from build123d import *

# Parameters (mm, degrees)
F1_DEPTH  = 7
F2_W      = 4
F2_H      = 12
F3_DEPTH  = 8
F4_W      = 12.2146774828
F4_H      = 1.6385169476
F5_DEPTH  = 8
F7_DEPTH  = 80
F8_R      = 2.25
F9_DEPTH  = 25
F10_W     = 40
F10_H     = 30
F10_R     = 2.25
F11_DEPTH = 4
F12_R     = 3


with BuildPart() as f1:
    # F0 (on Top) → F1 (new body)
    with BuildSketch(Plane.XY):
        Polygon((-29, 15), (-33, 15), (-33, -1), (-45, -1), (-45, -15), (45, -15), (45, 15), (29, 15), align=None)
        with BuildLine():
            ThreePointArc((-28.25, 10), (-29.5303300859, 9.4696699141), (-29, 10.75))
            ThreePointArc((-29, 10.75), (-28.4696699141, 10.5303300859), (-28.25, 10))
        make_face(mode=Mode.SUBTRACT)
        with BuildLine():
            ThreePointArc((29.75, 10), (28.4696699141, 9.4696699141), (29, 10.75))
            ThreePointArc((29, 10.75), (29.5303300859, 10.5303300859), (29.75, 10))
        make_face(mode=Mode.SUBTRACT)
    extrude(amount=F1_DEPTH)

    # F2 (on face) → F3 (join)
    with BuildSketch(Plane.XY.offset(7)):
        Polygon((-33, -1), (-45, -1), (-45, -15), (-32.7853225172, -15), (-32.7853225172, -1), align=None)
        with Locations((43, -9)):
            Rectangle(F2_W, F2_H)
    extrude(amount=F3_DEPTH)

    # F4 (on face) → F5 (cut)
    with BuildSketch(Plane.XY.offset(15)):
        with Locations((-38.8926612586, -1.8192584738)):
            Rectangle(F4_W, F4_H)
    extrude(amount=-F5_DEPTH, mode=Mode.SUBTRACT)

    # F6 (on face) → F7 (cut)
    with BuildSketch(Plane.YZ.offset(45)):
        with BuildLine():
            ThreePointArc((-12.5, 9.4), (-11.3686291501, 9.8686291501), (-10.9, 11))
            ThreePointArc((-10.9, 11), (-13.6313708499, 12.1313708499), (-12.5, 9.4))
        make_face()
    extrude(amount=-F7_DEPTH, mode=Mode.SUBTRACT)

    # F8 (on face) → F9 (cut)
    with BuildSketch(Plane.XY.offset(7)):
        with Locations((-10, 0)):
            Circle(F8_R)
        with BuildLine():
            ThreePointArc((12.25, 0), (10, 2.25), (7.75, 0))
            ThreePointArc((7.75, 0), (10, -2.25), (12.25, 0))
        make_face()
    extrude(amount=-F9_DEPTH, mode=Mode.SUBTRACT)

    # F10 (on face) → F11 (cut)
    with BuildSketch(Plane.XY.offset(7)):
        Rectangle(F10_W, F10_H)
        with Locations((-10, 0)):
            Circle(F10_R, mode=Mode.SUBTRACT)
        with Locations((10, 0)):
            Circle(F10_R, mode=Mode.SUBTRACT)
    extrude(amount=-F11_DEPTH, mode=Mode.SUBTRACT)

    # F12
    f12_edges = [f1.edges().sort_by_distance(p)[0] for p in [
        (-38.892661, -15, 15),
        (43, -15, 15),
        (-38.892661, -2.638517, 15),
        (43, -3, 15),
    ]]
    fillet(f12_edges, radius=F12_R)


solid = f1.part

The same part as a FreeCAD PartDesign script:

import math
import FreeCAD as App
import Part
import Sketcher
from FreeCAD import Vector


def edges_at(feature, points):
    """Names of the edges that pass closest to the given points."""
    edges = feature.Shape.Edges
    near = lambda p: min(range(len(edges)), key=lambda i: edges[i].distToShape(Part.Vertex(*p))[0])
    return sorted({f"Edge{near(p) + 1}" for p in points})

doc = App.newDocument("Part")
body = doc.addObject("PartDesign::Body", "Body")

# Sketch on XY plane
sketch1 = body.newObject("Sketcher::SketchObject", "Sketch")
sketch1.AttachmentSupport = (doc.getObject("XY_Plane"), [""])
sketch1.MapMode = "FlatFace"
sketch1.addGeometry(Part.LineSegment(Vector(-33, 15, 0), Vector(-33, -1, 0)), False)
sketch1.addGeometry(Part.LineSegment(Vector(-33, -1, 0), Vector(-45, -1, 0)), False)
sketch1.addGeometry(Part.LineSegment(Vector(-45, -1, 0), Vector(-45, -15, 0)), False)
sketch1.addGeometry(Part.LineSegment(Vector(-45, -15, 0), Vector(45, -15, 0)), False)
sketch1.addGeometry(Part.LineSegment(Vector(45, -15, 0), Vector(45, 15, 0)), False)
sketch1.addGeometry(Part.LineSegment(Vector(45, 15, 0), Vector(-33, 15, 0)), False)
sketch1.addGeometry(Part.ArcOfCircle(Part.Circle(Vector(-29, 10, 0), Vector(0, 0, 1), 0.8), math.radians(0), math.radians(90)), False)
sketch1.addGeometry(Part.ArcOfCircle(Part.Circle(Vector(-29, 10, 0), Vector(0, 0, 1), 0.8), math.radians(90), math.radians(360)), False)
sketch1.addGeometry(Part.ArcOfCircle(Part.Circle(Vector(29, 10, 0), Vector(0, 0, 1), 0.8), math.radians(0), math.radians(90)), False)
sketch1.addGeometry(Part.ArcOfCircle(Part.Circle(Vector(29, 10, 0), Vector(0, 0, 1), 0.8), math.radians(90), math.radians(360)), False)
sketch1.addConstraint(Sketcher.Constraint("Coincident", 0, 2, 1, 1))
sketch1.addConstraint(Sketcher.Constraint("Coincident", 1, 2, 2, 1))
sketch1.addConstraint(Sketcher.Constraint("Coincident", 2, 2, 3, 1))
sketch1.addConstraint(Sketcher.Constraint("Coincident", 3, 2, 4, 1))
sketch1.addConstraint(Sketcher.Constraint("Coincident", 4, 2, 5, 1))
sketch1.addConstraint(Sketcher.Constraint("Coincident", 5, 2, 0, 1))
sketch1.addConstraint(Sketcher.Constraint("Tangent", 6, 1, 7, 2))
sketch1.addConstraint(Sketcher.Constraint("Coincident", 7, 1, 6, 2))
sketch1.addConstraint(Sketcher.Constraint("Tangent", 8, 1, 9, 2))
sketch1.addConstraint(Sketcher.Constraint("Coincident", 9, 1, 8, 2))
sketch1.addConstraint(Sketcher.Constraint("Vertical", 0))
sketch1.addConstraint(Sketcher.Constraint("Horizontal", 1))
sketch1.addConstraint(Sketcher.Constraint("Vertical", 2))
sketch1.addConstraint(Sketcher.Constraint("Horizontal", 3))
sketch1.addConstraint(Sketcher.Constraint("Vertical", 4))
sketch1.addConstraint(Sketcher.Constraint("Horizontal", 5))
sketch1.addConstraint(Sketcher.Constraint("Equal", 7, 8))
sketch1.addConstraint(Sketcher.Constraint("Symmetric", 2, 2, 4, 2, -1, 1))
sketch1.addConstraint(Sketcher.Constraint("Symmetric", 6, 3, 8, 3, -2))
sketch1.addConstraint(Sketcher.Constraint("Horizontal", 9, 3, 6, 1))
sketch1.addConstraint(Sketcher.Constraint("Horizontal", 6, 1, 8, 1))
sketch1.addConstraint(Sketcher.Constraint("Vertical", 6, 3, 7, 1))
sketch1.addConstraint(Sketcher.Constraint("Vertical", 8, 3, 9, 1))
sketch1.addConstraint(Sketcher.Constraint("DistanceX", 1, 2, 1, 1, 12.0))
sketch1.addConstraint(Sketcher.Constraint("DistanceX", 3, 1, 3, 2, 90.0))
sketch1.addConstraint(Sketcher.Constraint("DistanceY", 0, 2, 0, 1, 16.0))
sketch1.addConstraint(Sketcher.Constraint("DistanceY", 2, 2, 2, 1, 14.0))
sketch1.addConstraint(Sketcher.Constraint("Radius", 6, 0.75))
sketch1.addConstraint(Sketcher.Constraint("DistanceX", 6, 3, -1, 1, 29.0))
sketch1.addConstraint(Sketcher.Constraint("DistanceY", -1, 1, 6, 3, 10.0))
pad1 = body.newObject("PartDesign::Pad", "Pad")
pad1.Profile = sketch1
pad1.Length = 7

# Sketch on XY plane
sketch2 = body.newObject("Sketcher::SketchObject", "Sketch001")
sketch2.AttachmentSupport = (doc.getObject("XY_Plane"), [""])
sketch2.MapMode = "FlatFace"
sketch2.AttachmentOffset = App.Placement(Vector(0, 0, 7), App.Rotation())
sketch2.addGeometry(Part.LineSegment(Vector(-45, -1, 0), Vector(-45, -15, 0)), False)
sketch2.addGeometry(Part.LineSegment(Vector(-45, -15, 0), Vector(-32.8, -15, 0)), False)
sketch2.addGeometry(Part.LineSegment(Vector(-32.8, -15, 0), Vector(-32.8, -1, 0)), False)
sketch2.addGeometry(Part.LineSegment(Vector(-32.8, -1, 0), Vector(-45, -1, 0)), False)
sketch2.addGeometry(Part.LineSegment(Vector(41, -3, 0), Vector(41, -15, 0)), False)
sketch2.addGeometry(Part.LineSegment(Vector(41, -15, 0), Vector(45, -15, 0)), False)
sketch2.addGeometry(Part.LineSegment(Vector(45, -15, 0), Vector(45, -3, 0)), False)
sketch2.addGeometry(Part.LineSegment(Vector(45, -3, 0), Vector(41, -3, 0)), False)
sketch2.addConstraint(Sketcher.Constraint("Coincident", 0, 2, 1, 1))
sketch2.addConstraint(Sketcher.Constraint("Coincident", 1, 2, 2, 1))
sketch2.addConstraint(Sketcher.Constraint("Coincident", 2, 2, 3, 1))
sketch2.addConstraint(Sketcher.Constraint("Coincident", 3, 2, 0, 1))
sketch2.addConstraint(Sketcher.Constraint("Coincident", 4, 2, 5, 1))
sketch2.addConstraint(Sketcher.Constraint("Coincident", 5, 2, 6, 1))
sketch2.addConstraint(Sketcher.Constraint("Coincident", 6, 2, 7, 1))
sketch2.addConstraint(Sketcher.Constraint("Coincident", 7, 2, 4, 1))
sketch2.addConstraint(Sketcher.Constraint("Vertical", 0))
sketch2.addConstraint(Sketcher.Constraint("Horizontal", 1))
sketch2.addConstraint(Sketcher.Constraint("Vertical", 2))
sketch2.addConstraint(Sketcher.Constraint("Horizontal", 3))
sketch2.addConstraint(Sketcher.Constraint("Vertical", 4))
sketch2.addConstraint(Sketcher.Constraint("Horizontal", 5))
sketch2.addConstraint(Sketcher.Constraint("Vertical", 6))
sketch2.addConstraint(Sketcher.Constraint("Horizontal", 7))
sketch2.addConstraint(Sketcher.Constraint("Symmetric", 0, 2, 5, 2, -2))
sketch2.addConstraint(Sketcher.Constraint("DistanceX", 5, 1, 5, 2, 4.0))
sketch2.addConstraint(Sketcher.Constraint("DistanceY", 0, 2, 0, 1, 14.0))
sketch2.addConstraint(Sketcher.Constraint("DistanceY", 4, 2, 4, 1, 12.0))
sketch2.addConstraint(Sketcher.Constraint("DistanceX", 0, 2, -1, 1, 45.0))
sketch2.addConstraint(Sketcher.Constraint("DistanceY", 0, 2, -1, 1, 15.0))
sketch2.addConstraint(Sketcher.Constraint("DistanceX", 1, 1, 1, 2, 12.214677))
pad2 = body.newObject("PartDesign::Pad", "Pad001")
pad2.Profile = sketch2
pad2.Length = 8

# Sketch on XY plane
sketch3 = body.newObject("Sketcher::SketchObject", "Sketch002")
sketch3.AttachmentSupport = (doc.getObject("XY_Plane"), [""])
sketch3.MapMode = "FlatFace"
sketch3.AttachmentOffset = App.Placement(Vector(0, 0, 15), App.Rotation())
sketch3.addGeometry(Part.LineSegment(Vector(-45, -1, 0), Vector(-45, -2.6, 0)), False)
sketch3.addGeometry(Part.LineSegment(Vector(-45, -2.6, 0), Vector(-32.8, -2.6, 0)), False)
sketch3.addGeometry(Part.LineSegment(Vector(-32.8, -2.6, 0), Vector(-32.8, -1, 0)), False)
sketch3.addGeometry(Part.LineSegment(Vector(-32.8, -1, 0), Vector(-45, -1, 0)), False)
sketch3.addConstraint(Sketcher.Constraint("Coincident", 0, 2, 1, 1))
sketch3.addConstraint(Sketcher.Constraint("Coincident", 1, 2, 2, 1))
sketch3.addConstraint(Sketcher.Constraint("Coincident", 2, 2, 3, 1))
sketch3.addConstraint(Sketcher.Constraint("Coincident", 3, 2, 0, 1))
sketch3.addConstraint(Sketcher.Constraint("Vertical", 0))
sketch3.addConstraint(Sketcher.Constraint("Horizontal", 1))
sketch3.addConstraint(Sketcher.Constraint("Vertical", 2))
sketch3.addConstraint(Sketcher.Constraint("Horizontal", 3))
sketch3.addConstraint(Sketcher.Constraint("DistanceX", 0, 2, -1, 1, 45.0))
sketch3.addConstraint(Sketcher.Constraint("DistanceY", 2, 2, -1, 1, 1.0))
sketch3.addConstraint(Sketcher.Constraint("DistanceX", 1, 1, 1, 2, 12.214677))
sketch3.addConstraint(Sketcher.Constraint("DistanceY", 0, 2, 0, 1, 1.638517))
pocket1 = body.newObject("PartDesign::Pocket", "Pocket")
pocket1.Profile = sketch3
pocket1.Length = 8

# Sketch on YZ plane
sketch4 = body.newObject("Sketcher::SketchObject", "Sketch003")
sketch4.AttachmentSupport = (doc.getObject("YZ_Plane"), [""])
sketch4.MapMode = "FlatFace"
sketch4.AttachmentOffset = App.Placement(Vector(0, 0, 45), App.Rotation())
sketch4.addGeometry(Part.ArcOfCircle(Part.Circle(Vector(-12.5, 11, 0), Vector(0, 0, 1), 1.6), math.radians(-90), math.radians(0)), False)
sketch4.addGeometry(Part.ArcOfCircle(Part.Circle(Vector(-12.5, 11, 0), Vector(0, 0, 1), 1.6), math.radians(0), math.radians(270)), False)
sketch4.addConstraint(Sketcher.Constraint("Tangent", 0, 1, 1, 2))
sketch4.addConstraint(Sketcher.Constraint("Coincident", 1, 1, 0, 2))
sketch4.addConstraint(Sketcher.Constraint("Horizontal", 0, 3, 1, 1))
sketch4.addConstraint(Sketcher.Constraint("Vertical", 1, 3, 0, 1))
sketch4.addConstraint(Sketcher.Constraint("Radius", 0, 1.6))
sketch4.addConstraint(Sketcher.Constraint("DistanceY", -1, 1, 0, 3, 11.0))
sketch4.addConstraint(Sketcher.Constraint("DistanceX", 0, 3, -1, 1, 12.5))
pocket2 = body.newObject("PartDesign::Pocket", "Pocket001")
pocket2.Profile = sketch4
pocket2.Length = 80

# Sketch on XY plane
sketch5 = body.newObject("Sketcher::SketchObject", "Sketch004")
sketch5.AttachmentSupport = (doc.getObject("XY_Plane"), [""])
sketch5.MapMode = "FlatFace"
sketch5.AttachmentOffset = App.Placement(Vector(0, 0, 7), App.Rotation())
sketch5.addGeometry(Part.Circle(Vector(-10, 0, 0), Vector(0, 0, 1), 2.2), False)
sketch5.addGeometry(Part.Circle(Vector(10, 0, 0), Vector(0, 0, 1), 2.2), False)
sketch5.addConstraint(Sketcher.Constraint("Equal", 0, 1))
sketch5.addConstraint(Sketcher.Constraint("Symmetric", 0, 3, 1, 3, -1, 1))
sketch5.addConstraint(Sketcher.Constraint("PointOnObject", 0, 3, -1))
sketch5.addConstraint(Sketcher.Constraint("Diameter", 0, 4.5))
sketch5.addConstraint(Sketcher.Constraint("DistanceX", 0, 3, -1, 1, 10.0))
pocket3 = body.newObject("PartDesign::Pocket", "Pocket002")
pocket3.Profile = sketch5
pocket3.Length = 25

# Sketch on XY plane
sketch6 = body.newObject("Sketcher::SketchObject", "Sketch005")
sketch6.AttachmentSupport = (doc.getObject("XY_Plane"), [""])
sketch6.MapMode = "FlatFace"
sketch6.AttachmentOffset = App.Placement(Vector(0, 0, 7), App.Rotation())
sketch6.addGeometry(Part.LineSegment(Vector(-20, 15, 0), Vector(-20, -15, 0)), False)
sketch6.addGeometry(Part.LineSegment(Vector(-20, -15, 0), Vector(20, -15, 0)), False)
sketch6.addGeometry(Part.LineSegment(Vector(20, -15, 0), Vector(20, 15, 0)), False)
sketch6.addGeometry(Part.LineSegment(Vector(20, 15, 0), Vector(-20, 15, 0)), False)
sketch6.addGeometry(Part.Circle(Vector(-10, 0, 0), Vector(0, 0, 1), 2.2), False)
sketch6.addGeometry(Part.Circle(Vector(10, 0, 0), Vector(0, 0, 1), 2.2), False)
sketch6.addConstraint(Sketcher.Constraint("Coincident", 0, 2, 1, 1))
sketch6.addConstraint(Sketcher.Constraint("Coincident", 1, 2, 2, 1))
sketch6.addConstraint(Sketcher.Constraint("Coincident", 2, 2, 3, 1))
sketch6.addConstraint(Sketcher.Constraint("Coincident", 3, 2, 0, 1))
sketch6.addConstraint(Sketcher.Constraint("Vertical", 0))
sketch6.addConstraint(Sketcher.Constraint("Horizontal", 1))
sketch6.addConstraint(Sketcher.Constraint("Vertical", 2))
sketch6.addConstraint(Sketcher.Constraint("Horizontal", 3))
sketch6.addConstraint(Sketcher.Constraint("Equal", 4, 5))
sketch6.addConstraint(Sketcher.Constraint("Symmetric", 4, 3, 5, 3, -1, 1))
sketch6.addConstraint(Sketcher.Constraint("Symmetric", 0, 2, 2, 2, -1, 1))
sketch6.addConstraint(Sketcher.Constraint("PointOnObject", 4, 3, -1))
sketch6.addConstraint(Sketcher.Constraint("Diameter", 4, 4.5))
sketch6.addConstraint(Sketcher.Constraint("DistanceX", 1, 1, 1, 2, 40.0))
sketch6.addConstraint(Sketcher.Constraint("DistanceY", 0, 2, 0, 1, 30.0))
sketch6.addConstraint(Sketcher.Constraint("DistanceX", 4, 3, -1, 1, 10.0))
pocket4 = body.newObject("PartDesign::Pocket", "Pocket003")
pocket4.Profile = sketch6
pocket4.Length = 4
doc.recompute()

fillet = body.newObject("PartDesign::Fillet", "Fillet")
fillet.Base = (pocket4, edges_at(pocket4, [
    (-38.893, -15, 15),
    (43, -15, 15),
    (-38.893, -2.639, 15),
    (43, -3, 15),
]))
fillet.Radius = 3

doc.recompute()
